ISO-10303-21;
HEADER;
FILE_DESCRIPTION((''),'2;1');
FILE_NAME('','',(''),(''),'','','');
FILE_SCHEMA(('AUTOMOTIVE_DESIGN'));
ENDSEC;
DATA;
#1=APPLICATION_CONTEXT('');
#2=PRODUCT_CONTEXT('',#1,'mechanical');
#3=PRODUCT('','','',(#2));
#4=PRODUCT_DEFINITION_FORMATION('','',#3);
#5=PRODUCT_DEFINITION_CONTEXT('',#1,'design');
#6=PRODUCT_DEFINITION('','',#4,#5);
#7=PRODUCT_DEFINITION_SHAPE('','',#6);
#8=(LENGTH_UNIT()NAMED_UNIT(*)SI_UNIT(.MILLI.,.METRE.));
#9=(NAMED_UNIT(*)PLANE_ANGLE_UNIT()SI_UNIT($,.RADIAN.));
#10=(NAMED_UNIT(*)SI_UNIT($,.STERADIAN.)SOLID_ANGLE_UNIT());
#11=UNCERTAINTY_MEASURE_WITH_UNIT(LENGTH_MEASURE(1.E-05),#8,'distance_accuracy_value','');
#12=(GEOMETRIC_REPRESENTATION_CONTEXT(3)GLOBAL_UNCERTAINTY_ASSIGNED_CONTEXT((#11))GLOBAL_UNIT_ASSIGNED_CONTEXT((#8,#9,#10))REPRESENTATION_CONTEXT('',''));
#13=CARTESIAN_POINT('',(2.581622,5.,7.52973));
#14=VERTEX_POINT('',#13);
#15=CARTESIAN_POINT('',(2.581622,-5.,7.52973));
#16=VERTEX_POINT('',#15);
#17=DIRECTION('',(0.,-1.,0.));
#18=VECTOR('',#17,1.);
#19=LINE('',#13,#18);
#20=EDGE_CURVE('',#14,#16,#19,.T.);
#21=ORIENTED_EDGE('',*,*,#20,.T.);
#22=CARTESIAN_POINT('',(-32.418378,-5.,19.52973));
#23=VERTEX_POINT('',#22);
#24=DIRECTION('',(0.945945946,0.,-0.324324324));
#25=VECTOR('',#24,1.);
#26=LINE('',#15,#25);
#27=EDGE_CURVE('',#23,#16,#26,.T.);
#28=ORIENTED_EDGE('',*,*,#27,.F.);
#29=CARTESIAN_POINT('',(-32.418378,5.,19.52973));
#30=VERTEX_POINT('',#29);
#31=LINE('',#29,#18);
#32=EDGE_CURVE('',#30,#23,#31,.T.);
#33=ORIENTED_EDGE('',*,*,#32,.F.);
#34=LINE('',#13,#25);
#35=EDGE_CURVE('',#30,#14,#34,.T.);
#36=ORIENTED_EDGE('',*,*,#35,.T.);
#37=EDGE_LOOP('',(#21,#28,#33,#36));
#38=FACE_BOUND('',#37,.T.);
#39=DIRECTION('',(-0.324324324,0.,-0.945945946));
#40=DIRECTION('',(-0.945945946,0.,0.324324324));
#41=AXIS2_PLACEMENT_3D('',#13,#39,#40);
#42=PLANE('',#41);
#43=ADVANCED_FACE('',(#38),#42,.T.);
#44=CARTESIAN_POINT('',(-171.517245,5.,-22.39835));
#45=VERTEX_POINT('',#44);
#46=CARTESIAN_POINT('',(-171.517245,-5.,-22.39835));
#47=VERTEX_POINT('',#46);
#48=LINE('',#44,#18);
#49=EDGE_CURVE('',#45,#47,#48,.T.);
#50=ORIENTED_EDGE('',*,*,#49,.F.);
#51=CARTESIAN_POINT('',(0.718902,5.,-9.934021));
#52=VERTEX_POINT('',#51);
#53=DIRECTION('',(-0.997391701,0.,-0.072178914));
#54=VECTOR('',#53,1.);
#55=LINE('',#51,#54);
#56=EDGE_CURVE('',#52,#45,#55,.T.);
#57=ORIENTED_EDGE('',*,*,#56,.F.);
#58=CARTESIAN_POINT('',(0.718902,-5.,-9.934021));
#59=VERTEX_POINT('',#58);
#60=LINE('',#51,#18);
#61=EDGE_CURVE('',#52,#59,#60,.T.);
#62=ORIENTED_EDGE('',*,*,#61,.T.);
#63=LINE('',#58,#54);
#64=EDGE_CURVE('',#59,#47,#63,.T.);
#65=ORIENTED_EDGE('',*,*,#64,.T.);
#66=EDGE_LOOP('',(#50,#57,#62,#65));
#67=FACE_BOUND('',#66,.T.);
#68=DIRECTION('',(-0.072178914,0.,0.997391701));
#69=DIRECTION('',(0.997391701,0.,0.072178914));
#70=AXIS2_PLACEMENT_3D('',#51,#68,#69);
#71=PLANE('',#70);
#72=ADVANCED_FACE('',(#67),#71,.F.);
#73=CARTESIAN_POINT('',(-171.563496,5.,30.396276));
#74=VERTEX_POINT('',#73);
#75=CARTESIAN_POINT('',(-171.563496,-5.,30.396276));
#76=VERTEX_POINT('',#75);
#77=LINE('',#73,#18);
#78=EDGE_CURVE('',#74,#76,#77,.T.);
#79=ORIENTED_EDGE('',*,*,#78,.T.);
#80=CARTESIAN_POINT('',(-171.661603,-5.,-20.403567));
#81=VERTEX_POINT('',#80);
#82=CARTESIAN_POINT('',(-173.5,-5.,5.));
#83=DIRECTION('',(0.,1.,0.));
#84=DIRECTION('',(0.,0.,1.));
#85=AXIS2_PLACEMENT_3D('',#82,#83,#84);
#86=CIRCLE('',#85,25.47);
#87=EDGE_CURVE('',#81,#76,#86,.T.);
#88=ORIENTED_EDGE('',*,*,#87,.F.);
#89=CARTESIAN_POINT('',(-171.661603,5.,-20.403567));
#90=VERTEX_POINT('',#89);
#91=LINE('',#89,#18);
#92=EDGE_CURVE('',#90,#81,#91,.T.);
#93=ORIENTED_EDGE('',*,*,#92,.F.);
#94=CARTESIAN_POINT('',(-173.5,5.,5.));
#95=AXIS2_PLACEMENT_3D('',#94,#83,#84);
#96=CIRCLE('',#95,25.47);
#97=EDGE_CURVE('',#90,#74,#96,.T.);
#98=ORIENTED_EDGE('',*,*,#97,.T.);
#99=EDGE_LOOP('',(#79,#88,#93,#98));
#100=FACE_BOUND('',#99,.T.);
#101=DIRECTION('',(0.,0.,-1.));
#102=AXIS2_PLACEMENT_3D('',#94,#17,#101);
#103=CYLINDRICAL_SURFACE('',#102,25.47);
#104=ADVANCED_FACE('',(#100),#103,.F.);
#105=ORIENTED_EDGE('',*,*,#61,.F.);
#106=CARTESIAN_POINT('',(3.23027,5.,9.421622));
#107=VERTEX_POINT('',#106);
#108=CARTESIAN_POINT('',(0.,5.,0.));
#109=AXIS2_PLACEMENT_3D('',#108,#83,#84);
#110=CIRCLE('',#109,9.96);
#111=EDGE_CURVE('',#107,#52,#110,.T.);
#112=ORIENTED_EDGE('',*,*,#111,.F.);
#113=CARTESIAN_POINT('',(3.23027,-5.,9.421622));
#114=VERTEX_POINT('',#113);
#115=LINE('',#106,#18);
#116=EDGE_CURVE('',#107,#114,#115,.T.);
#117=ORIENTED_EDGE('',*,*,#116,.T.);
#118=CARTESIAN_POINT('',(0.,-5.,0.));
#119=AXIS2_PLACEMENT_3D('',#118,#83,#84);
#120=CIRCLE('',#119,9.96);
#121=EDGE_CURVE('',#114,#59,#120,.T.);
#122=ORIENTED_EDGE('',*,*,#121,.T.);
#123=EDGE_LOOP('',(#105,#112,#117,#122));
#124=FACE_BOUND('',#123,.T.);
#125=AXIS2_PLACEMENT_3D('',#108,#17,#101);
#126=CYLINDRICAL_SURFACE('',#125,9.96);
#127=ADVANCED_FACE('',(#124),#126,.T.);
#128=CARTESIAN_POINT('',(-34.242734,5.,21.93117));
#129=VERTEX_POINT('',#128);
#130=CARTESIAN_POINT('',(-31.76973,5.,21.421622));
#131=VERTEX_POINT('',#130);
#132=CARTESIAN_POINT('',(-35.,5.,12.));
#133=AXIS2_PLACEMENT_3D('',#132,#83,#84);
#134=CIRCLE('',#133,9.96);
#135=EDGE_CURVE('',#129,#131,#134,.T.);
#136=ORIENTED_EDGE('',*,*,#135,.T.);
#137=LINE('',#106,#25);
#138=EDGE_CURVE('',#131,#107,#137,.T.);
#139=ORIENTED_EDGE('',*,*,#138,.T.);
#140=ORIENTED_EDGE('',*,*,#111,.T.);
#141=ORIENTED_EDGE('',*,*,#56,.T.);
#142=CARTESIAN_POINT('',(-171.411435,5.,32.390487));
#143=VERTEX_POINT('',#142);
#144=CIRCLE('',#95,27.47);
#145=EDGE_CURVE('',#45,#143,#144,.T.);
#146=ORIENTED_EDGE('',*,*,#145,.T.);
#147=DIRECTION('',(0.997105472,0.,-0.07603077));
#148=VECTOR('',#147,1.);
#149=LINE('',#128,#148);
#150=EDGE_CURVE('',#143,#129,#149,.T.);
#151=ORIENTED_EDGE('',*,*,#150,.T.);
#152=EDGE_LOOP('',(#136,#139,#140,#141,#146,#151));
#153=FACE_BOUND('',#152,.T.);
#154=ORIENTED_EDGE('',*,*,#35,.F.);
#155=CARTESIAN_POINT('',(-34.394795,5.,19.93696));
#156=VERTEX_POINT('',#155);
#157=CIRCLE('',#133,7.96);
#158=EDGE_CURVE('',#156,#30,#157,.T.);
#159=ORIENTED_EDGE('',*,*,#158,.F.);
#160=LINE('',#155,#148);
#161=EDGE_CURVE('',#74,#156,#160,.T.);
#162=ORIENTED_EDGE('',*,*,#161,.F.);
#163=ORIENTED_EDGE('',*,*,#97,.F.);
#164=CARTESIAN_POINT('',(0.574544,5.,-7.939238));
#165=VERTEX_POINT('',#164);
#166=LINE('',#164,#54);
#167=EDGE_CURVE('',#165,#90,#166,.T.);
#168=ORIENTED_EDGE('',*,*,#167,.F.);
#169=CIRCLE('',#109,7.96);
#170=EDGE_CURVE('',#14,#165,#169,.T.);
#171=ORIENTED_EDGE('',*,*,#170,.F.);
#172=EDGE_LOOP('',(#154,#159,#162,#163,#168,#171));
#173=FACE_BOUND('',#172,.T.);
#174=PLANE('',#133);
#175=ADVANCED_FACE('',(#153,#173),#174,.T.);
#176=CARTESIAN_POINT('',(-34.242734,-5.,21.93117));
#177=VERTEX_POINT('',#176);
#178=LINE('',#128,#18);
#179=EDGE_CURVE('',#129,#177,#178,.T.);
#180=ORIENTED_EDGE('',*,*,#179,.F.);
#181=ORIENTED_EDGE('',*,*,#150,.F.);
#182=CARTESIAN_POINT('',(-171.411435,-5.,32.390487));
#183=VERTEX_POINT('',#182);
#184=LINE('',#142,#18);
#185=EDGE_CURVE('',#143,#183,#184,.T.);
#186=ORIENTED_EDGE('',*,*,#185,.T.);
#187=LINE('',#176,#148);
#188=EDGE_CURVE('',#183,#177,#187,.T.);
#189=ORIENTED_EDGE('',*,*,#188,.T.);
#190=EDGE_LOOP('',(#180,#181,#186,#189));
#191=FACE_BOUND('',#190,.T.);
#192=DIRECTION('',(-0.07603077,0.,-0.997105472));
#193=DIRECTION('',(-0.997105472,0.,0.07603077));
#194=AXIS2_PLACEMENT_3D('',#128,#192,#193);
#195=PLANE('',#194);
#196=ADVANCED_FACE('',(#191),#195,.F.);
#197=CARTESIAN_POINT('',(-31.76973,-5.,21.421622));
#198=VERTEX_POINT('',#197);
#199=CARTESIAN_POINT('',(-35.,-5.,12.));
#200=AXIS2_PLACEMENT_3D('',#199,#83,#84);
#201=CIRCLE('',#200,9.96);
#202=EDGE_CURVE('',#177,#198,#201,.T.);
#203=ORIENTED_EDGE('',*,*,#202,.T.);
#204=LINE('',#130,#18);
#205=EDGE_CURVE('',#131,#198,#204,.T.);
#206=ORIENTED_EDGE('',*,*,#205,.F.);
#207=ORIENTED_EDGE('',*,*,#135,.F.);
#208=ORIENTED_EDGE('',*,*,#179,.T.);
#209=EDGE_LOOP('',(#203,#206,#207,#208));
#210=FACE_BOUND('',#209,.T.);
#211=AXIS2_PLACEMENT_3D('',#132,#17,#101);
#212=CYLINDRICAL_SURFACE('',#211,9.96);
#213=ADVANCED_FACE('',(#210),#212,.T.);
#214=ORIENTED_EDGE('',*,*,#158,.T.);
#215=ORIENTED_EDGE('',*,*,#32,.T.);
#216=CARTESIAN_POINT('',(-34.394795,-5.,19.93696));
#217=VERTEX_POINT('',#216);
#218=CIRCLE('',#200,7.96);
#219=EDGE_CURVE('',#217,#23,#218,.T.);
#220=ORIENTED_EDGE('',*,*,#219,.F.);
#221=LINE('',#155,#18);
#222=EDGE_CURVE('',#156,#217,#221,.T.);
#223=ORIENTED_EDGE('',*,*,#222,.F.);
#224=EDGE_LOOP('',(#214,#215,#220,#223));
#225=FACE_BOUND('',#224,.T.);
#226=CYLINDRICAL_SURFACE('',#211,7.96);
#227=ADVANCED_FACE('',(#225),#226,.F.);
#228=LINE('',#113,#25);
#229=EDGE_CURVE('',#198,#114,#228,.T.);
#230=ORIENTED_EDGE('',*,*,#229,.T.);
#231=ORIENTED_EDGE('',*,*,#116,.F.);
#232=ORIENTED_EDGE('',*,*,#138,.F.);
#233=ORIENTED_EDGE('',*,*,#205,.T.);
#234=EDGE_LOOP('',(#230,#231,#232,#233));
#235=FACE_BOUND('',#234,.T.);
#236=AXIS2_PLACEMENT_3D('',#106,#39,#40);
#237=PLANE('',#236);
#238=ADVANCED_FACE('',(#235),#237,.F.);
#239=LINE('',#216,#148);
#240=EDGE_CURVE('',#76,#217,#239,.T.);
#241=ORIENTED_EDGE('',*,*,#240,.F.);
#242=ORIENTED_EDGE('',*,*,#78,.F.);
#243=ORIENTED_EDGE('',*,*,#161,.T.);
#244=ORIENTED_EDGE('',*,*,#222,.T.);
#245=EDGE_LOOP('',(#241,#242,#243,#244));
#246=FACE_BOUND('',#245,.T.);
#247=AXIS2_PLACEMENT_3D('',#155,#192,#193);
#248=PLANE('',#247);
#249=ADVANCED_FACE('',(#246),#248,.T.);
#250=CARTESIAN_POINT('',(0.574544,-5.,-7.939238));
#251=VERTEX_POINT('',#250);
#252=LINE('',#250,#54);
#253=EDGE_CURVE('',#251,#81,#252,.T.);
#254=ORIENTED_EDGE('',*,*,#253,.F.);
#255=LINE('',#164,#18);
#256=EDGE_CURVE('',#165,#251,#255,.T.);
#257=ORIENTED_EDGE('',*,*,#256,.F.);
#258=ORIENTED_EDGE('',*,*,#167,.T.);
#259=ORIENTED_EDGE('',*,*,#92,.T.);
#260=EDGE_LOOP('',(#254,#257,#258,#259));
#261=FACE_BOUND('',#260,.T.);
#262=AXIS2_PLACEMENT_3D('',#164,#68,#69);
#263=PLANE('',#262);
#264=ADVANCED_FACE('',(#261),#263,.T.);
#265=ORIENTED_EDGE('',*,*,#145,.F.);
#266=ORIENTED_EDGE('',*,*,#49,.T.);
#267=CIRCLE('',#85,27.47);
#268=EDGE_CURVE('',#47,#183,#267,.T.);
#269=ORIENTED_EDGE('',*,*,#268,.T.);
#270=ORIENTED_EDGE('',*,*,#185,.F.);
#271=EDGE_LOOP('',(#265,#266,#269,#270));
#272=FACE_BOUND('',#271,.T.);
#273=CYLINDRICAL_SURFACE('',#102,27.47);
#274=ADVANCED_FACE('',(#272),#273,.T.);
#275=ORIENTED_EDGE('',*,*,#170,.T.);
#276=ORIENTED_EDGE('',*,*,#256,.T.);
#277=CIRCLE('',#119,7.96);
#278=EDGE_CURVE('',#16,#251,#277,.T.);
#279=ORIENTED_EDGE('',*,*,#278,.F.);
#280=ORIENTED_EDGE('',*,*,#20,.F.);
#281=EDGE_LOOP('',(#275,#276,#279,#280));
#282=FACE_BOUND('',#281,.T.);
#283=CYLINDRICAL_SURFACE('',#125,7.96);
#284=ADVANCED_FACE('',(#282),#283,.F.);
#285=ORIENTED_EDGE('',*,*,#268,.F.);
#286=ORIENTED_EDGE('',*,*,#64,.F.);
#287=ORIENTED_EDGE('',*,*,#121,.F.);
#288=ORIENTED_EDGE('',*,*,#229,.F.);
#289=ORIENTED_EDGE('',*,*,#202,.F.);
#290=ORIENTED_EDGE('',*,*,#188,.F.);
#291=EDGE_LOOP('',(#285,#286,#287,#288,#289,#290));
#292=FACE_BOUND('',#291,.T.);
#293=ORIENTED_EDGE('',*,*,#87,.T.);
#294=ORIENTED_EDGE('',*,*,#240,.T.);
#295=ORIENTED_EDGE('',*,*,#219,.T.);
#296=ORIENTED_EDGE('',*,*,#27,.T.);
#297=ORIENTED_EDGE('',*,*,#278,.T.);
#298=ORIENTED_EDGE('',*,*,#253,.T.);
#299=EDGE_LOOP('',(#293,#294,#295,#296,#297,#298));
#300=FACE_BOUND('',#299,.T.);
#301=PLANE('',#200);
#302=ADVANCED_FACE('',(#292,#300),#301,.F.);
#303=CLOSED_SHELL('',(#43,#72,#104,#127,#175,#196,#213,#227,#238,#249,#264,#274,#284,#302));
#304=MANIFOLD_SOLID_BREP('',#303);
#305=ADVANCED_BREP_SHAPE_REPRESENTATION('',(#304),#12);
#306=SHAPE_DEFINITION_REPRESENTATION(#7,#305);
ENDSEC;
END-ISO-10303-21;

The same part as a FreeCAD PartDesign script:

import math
import FreeCAD as App
import Part
import Sketcher

V = App.Vector

doc = App.newDocument("Part")
body = doc.addObject("PartDesign::Body", "Body")

sketch1 = body.newObject("Sketcher::SketchObject", "Sketch")
sketch1.AttachmentSupport = (doc.getObject("XZ_Plane"), [""])
sketch1.MapMode = "FlatFace"
sketch1.addGeometry([
    Part.LineSegment(V(-171.411435, 32.390487, 0), V(-34.242734, 21.93117, 0)),
    Part.ArcOfCircle(Part.Circle(V(-35, 12, 0), V(0, 0, 1), 9.96), math.radians(71.075356), math.radians(85.63955)),
    Part.LineSegment(V(-31.76973, 21.421622, 0), V(3.23027, 9.421622, 0)),
    Part.ArcOfCircle(Part.Circle(V(0, 0, 0), V(0, 0, 1), 9.96), math.radians(-85.860854), math.radians(71.075356)),
    Part.LineSegment(V(0.718902, -9.934021, 0), V(-171.517245, -22.39835, 0)),
    Part.ArcOfCircle(Part.Circle(V(-173.5, 5, 0), V(0, 0, 1), 27.47), math.radians(85.63955), math.radians(274.139146)),
    Part.ArcOfCircle(Part.Circle(V(0, 0, 0), V(0, 0, 1), 7.96), math.radians(-85.860854), math.radians(71.075356)),
    Part.LineSegment(V(2.581622, 7.52973, 0), V(-32.418378, 19.52973, 0)),
    Part.ArcOfCircle(Part.Circle(V(-35, 12, 0), V(0, 0, 1), 7.96), math.radians(71.075356), math.radians(85.63955)),
    Part.LineSegment(V(-34.394795, 19.93696, 0), V(-171.563496, 30.396276, 0)),
    Part.ArcOfCircle(Part.Circle(V(-173.5, 5, 0), V(0, 0, 1), 25.47), math.radians(85.63955), math.radians(274.139146)),
    Part.LineSegment(V(-171.661603, -20.403567, 0), V(0.574544, -7.939238, 0)),
], False)
sketch1.addConstraint([
    Sketcher.Constraint("Tangent", 0, 2, 1, 2),
    Sketcher.Constraint("Tangent", 1, 1, 2, 1),
    Sketcher.Constraint("Tangent", 2, 2, 3, 2),
    Sketcher.Constraint("Tangent", 3, 1, 4, 1),
    Sketcher.Constraint("Tangent", 4, 2, 5, 2),
    Sketcher.Constraint("Tangent", 5, 1, 0, 1),
    Sketcher.Constraint("Tangent", 6, 2, 7, 1),
    Sketcher.Constraint("Tangent", 7, 2, 8, 1),
    Sketcher.Constraint("Tangent", 8, 2, 9, 1),
    Sketcher.Constraint("Tangent", 9, 2, 10, 1),
    Sketcher.Constraint("Tangent", 10, 2, 11, 1),
    Sketcher.Constraint("Tangent", 11, 2, 6, 1),
    Sketcher.Constraint("Coincident", 3, 3, -1, 1),
    Sketcher.Constraint("Coincident", 6, 3, -1, 1),
    Sketcher.Constraint("Coincident", 8, 3, 1, 3),
    Sketcher.Constraint("Coincident", 10, 3, 5, 3),
    Sketcher.Constraint("Equal", 1, 3),
    Sketcher.Constraint("Equal", 6, 8),
    Sketcher.Constraint("Parallel", 0, 9),
    Sketcher.Constraint("Radius", 1, 9.96),
    Sketcher.Constraint("Radius", 5, 27.47),
    Sketcher.Constraint("Radius", 6, 7.96),
    Sketcher.Constraint("Distance", 2, 37.0),
    Sketcher.Constraint("DistanceX", 1, 3, -1, 1, 35.0),
    Sketcher.Constraint("DistanceY", -1, 1, 5, 3, 5.0),
    Sketcher.Constraint("DistanceX", 5, 3, -1, 1, 173.5),
])
pad1 = body.newObject("PartDesign::Pad", "Pad")
pad1.Profile = sketch1
pad1.Length = 10
pad1.Midplane = True

doc.recompute()
